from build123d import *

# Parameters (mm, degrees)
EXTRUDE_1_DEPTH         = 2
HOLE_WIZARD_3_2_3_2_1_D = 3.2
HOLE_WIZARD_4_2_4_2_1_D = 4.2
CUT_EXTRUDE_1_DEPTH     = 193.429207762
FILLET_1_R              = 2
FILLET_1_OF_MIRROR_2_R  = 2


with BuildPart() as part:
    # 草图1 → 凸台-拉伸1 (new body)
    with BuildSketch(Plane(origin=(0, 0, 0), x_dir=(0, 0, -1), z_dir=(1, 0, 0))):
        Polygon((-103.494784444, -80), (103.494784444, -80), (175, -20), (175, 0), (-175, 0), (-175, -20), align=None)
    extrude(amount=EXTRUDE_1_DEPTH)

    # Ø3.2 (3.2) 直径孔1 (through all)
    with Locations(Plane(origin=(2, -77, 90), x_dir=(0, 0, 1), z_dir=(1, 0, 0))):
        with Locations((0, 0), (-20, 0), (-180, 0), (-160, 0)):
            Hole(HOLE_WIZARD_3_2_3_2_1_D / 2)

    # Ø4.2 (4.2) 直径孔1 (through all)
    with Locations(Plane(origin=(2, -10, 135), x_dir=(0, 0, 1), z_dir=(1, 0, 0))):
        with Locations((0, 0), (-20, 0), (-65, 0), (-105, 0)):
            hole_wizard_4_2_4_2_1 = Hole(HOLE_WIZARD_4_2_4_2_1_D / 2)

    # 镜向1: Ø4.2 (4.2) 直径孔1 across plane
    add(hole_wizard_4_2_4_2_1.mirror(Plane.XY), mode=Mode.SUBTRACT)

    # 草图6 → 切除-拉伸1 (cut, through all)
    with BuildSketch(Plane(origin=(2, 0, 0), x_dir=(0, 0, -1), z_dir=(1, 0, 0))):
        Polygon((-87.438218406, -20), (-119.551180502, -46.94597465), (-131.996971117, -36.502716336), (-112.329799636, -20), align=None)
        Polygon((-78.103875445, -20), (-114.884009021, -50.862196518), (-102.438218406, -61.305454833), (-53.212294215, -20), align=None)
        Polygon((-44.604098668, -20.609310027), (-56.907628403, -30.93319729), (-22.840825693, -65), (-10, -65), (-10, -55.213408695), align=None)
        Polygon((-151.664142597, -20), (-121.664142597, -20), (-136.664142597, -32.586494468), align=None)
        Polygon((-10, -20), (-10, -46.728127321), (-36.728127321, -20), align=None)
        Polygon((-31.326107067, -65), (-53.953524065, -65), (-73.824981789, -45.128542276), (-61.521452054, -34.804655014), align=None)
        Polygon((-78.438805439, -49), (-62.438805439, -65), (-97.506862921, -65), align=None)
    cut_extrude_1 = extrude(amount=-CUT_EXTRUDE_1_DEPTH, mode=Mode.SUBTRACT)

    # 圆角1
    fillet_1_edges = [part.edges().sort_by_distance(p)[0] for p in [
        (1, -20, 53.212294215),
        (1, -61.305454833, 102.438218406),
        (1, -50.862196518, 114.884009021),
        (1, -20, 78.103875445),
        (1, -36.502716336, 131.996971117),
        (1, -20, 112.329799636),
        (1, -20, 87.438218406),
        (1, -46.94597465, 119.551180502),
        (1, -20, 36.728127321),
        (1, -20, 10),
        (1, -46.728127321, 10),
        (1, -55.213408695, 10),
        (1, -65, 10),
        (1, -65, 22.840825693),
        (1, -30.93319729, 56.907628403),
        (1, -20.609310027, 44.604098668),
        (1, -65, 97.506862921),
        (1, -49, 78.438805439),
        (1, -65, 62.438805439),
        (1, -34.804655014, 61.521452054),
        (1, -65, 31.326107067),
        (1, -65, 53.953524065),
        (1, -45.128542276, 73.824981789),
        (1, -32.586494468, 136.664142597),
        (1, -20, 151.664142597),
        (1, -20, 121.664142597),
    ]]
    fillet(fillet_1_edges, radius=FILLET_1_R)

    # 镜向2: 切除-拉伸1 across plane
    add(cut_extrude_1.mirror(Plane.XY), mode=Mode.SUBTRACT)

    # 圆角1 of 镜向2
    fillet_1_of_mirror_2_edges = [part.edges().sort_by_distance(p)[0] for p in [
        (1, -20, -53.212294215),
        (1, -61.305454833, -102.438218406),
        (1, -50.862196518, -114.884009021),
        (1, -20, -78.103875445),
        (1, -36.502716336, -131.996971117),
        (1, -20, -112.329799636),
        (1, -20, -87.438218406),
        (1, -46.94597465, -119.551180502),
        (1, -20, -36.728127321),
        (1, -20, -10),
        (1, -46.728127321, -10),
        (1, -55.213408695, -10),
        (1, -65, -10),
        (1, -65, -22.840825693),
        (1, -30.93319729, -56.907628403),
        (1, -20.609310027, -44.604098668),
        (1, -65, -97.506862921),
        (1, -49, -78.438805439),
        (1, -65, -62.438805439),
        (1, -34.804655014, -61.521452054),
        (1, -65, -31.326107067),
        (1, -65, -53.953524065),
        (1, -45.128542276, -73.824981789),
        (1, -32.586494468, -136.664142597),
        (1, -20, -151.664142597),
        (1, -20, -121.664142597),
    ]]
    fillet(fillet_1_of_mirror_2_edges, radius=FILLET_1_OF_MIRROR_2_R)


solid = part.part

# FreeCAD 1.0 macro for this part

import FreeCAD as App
import Part
import Sketcher

V = App.Vector
Q = App.Units.Quantity


def edges_at(feature, points):
    """Names of the edges that pass closest to the given points."""
    edges = feature.Shape.Edges
    near = lambda p: min(range(len(edges)), key=lambda i: edges[i].distToShape(Part.Vertex(*p))[0])
    return sorted({f"Edge{near(p) + 1}" for p in points})


def add_polygon(sketch, points):
    """Adds a closed chain of lines whose ends are joined by coincident constraints."""
    first, n = sketch.GeometryCount, len(points)
    for a, b in zip(points, points[1:] + points[:1]):
        sketch.addGeometry(Part.LineSegment(App.Vector(*a, 0), App.Vector(*b, 0)), False)
    for i in range(n):
        sketch.addConstraint(Sketcher.Constraint("Coincident", first + i, 2, first + (i + 1) % n, 1))

doc = App.newDocument("Part")
body = doc.addObject("PartDesign::Body", "Body")

# Sketch on YZ plane
sketch1 = body.newObject("Sketcher::SketchObject", "Sketch")
sketch1.AttachmentSupport = (doc.getObject("YZ_Plane"), [""])
sketch1.MapMode = "FlatFace"
add_polygon(sketch1, [(-80, 103), (-80, -103), (-20, -175), (0, -175), (0, 175), (-20, 175)])  # lines 0-5
sketch1.addConstraint([
    Sketcher.Constraint("Vertical", 0),
    Sketcher.Constraint("Horizontal", 2),
    Sketcher.Constraint("Vertical", 3),
    Sketcher.Constraint("Horizontal", 4),
    Sketcher.Constraint("Symmetric", 2, 2, 3, 2, -1, 1),
    Sketcher.Constraint("Vertical", 1, 2, 4, 2),
    Sketcher.Constraint("Equal", 1, 5),
    Sketcher.Constraint("DistanceX", 2, 1, 2, 2, 20.0),
    Sketcher.Constraint("DistanceY", 3, 1, 3, 2, 350.0),
    Sketcher.Constraint("Angle", 1, Q("-50 deg")),
    Sketcher.Constraint("DistanceX", 0, 2, -1, 1, 80.0),
])
pad1 = body.newObject("PartDesign::Pad", "Pad")
pad1.Profile = sketch1
pad1.Length = 2

# Sketch on YZ plane
sketch2 = body.newObject("Sketcher::SketchObject", "Sketch001")
sketch2.AttachmentSupport = (doc.getObject("YZ_Plane"), [""])
sketch2.MapMode = "FlatFace"
sketch2.AttachmentOffset = App.Placement(V(0, 0, 2), App.Rotation())
sketch2.addGeometry([
    Part.Circle(V(-77, 90, 0), V(0, 0, 1), 1.6),
    Part.Circle(V(-77, 70, 0), V(0, 0, 1), 1.6),
    Part.Circle(V(-77, -90, 0), V(0, 0, 1), 1.6),
    Part.Circle(V(-77, -70, 0), V(0, 0, 1), 1.6),
], False)
sketch2.addConstraint([
    Sketcher.Constraint("Equal", 0, 1),
    Sketcher.Constraint("Equal", 1, 2),
    Sketcher.Constraint("Equal", 2, 3),
    Sketcher.Constraint("Symmetric", 0, 3, 2, 3, -1),
    Sketcher.Constraint("Symmetric", 1, 3, 3, 3, -1),
    Sketcher.Constraint("Vertical", 0, 3, 1, 3),
    Sketcher.Constraint("Diameter", 0, 3.2),
    Sketcher.Constraint("DistanceX", 0, 3, -1, 1, 77.0),
    Sketcher.Constraint("DistanceY", -1, 1, 0, 3, 90.0),
    Sketcher.Constraint("DistanceY", -1, 1, 1, 3, 70.0),
])
doc.recompute()
hole = body.newObject("PartDesign::Hole", "Hole")
hole.Profile = sketch2
hole.ThreadType = "None"
hole.Diameter = 3.2
hole.DepthType = "ThroughAll"

# Sketch on YZ plane
sketch3 = body.newObject("Sketcher::SketchObject", "Sketch002")
sketch3.AttachmentSupport = (doc.getObject("YZ_Plane"), [""])
sketch3.MapMode = "FlatFace"
sketch3.AttachmentOffset = App.Placement(V(0, 0, 2), App.Rotation())
sketch3.addGeometry([
    Part.Circle(V(-10, 135, 0), V(0, 0, 1), 2.1),
    Part.Circle(V(-10, 115, 0), V(0, 0, 1), 2.1),
    Part.Circle(V(-10, 70, 0), V(0, 0, 1), 2.1),
    Part.Circle(V(-10, 30, 0), V(0, 0, 1), 2.1),
], False)
sketch3.addConstraint([
    Sketcher.Constraint("Equal", 0, 1),
    Sketcher.Constraint("Equal", 1, 2),
    Sketcher.Constraint("Equal", 2, 3),
    Sketcher.Constraint("Vertical", 0, 3, 1, 3),
    Sketcher.Constraint("Vertical", 1, 3, 2, 3),
    Sketcher.Constraint("Vertical", 2, 3, 3, 3),
    Sketcher.Constraint("Diameter", 0, 4.2),
    Sketcher.Constraint("DistanceX", 0, 3, -1, 1, 10.0),
    Sketcher.Constraint("DistanceY", -1, 1, 0, 3, 135.0),
    Sketcher.Constraint("DistanceY", -1, 1, 1, 3, 115.0),
    Sketcher.Constraint("DistanceY", -1, 1, 2, 3, 70.0),
    Sketcher.Constraint("DistanceY", -1, 1, 3, 3, 30.0),
])
doc.recompute()
hole2 = body.newObject("PartDesign::Hole", "Hole001")
hole2.Profile = sketch3
hole2.ThreadType = "None"
hole2.Diameter = 4.2
hole2.DepthType = "ThroughAll"
doc.recompute()

mirrored = body.newObject("PartDesign::Mirrored", "Mirrored")
mirrored.Originals = [hole2]
mirrored.MirrorPlane = (doc.getObject("XY_Plane"), [""])
body.Tip = mirrored

# Sketch on YZ plane
sketch4 = body.newObject("Sketcher::SketchObject", "Sketch003")
sketch4.AttachmentSupport = (doc.getObject("YZ_Plane"), [""])
sketch4.MapMode = "FlatFace"
sketch4.AttachmentOffset = App.Placement(V(0, 0, 2), App.Rotation())
add_polygon(sketch4, [(-47, 120), (-20, 87), (-20, 112), (-37, 132)])  # lines 0-3
add_polygon(sketch4, [(-20, 78), (-51, 115), (-61, 102), (-20, 53)])  # lines 4-7
add_polygon(sketch4, [(-21, 45), (-31, 57), (-65, 23), (-65, 10), (-55, 10)])  # lines 8-12
add_polygon(sketch4, [(-20, 122), (-20, 152), (-33, 137)])  # lines 13-15
add_polygon(sketch4, [(-47, 10), (-20, 10), (-20, 37)])  # lines 16-18
add_polygon(sketch4, [(-65, 54), (-65, 31), (-35, 62), (-45, 74)])  # lines 19-22
add_polygon(sketch4, [(-65, 62), (-49, 78), (-65, 98)])  # lines 23-25
sketch4.addConstraint([
    Sketcher.Constraint("Vertical", 1),
    Sketcher.Constraint("Vertical", 7),
    Sketcher.Constraint("Vertical", 10),
    Sketcher.Constraint("Horizontal", 11),
    Sketcher.Constraint("Vertical", 13),
    Sketcher.Constraint("Horizontal", 16),
    Sketcher.Constraint("Vertical", 17),
    Sketcher.Constraint("Vertical", 19),
    Sketcher.Constraint("Vertical", 25),
    Sketcher.Constraint("Parallel", 0, 2),
    Sketcher.Constraint("Parallel", 2, 4),
    Sketcher.Constraint("Parallel", 3, 5),
    Sketcher.Constraint("Parallel", 4, 6),
    Sketcher.Constraint("Parallel", 6, 8),
    Sketcher.Constraint("Parallel", 9, 12),
    Sketcher.Constraint("Parallel", 5, 14),
    Sketcher.Constraint("Parallel", 8, 15),
    Sketcher.Constraint("Parallel", 12, 18),
    Sketcher.Constraint("Parallel", 18, 20),
    Sketcher.Constraint("Parallel", 15, 21),
    Sketcher.Constraint("Parallel", 20, 22),
    Sketcher.Constraint("Parallel", 22, 23),
    Sketcher.Constraint("Parallel", 21, 24),
    Sketcher.Constraint("Horizontal", 11, 2, 16, 2),
    Sketcher.Constraint("Vertical", 1, 2, 6, 2),
    Sketcher.Constraint("Vertical", 7, 2, 13, 2),
    Sketcher.Constraint("Vertical", 15, 2, 16, 2),
    Sketcher.Constraint("Vertical", 10, 2, 19, 2),
    Sketcher.Constraint("Vertical", 22, 2, 24, 2),
    Sketcher.Constraint("Equal", 1, 7),
    Sketcher.Constraint("Equal", 16, 17),
    Sketcher.Constraint("Equal", 14, 15),
    Sketcher.Constraint("Equal", 8, 21),
    Sketcher.Constraint("DistanceY", 13, 1, 13, 2, 30.0),
    Sketcher.Constraint("Angle", 0, Q("-50 deg")),
    Sketcher.Constraint("DistanceX", 0, 2, -1, 1, 20.0),
    Sketcher.Constraint("DistanceX", 9, 2, -1, 1, 65.0),
    Sketcher.Constraint("DistanceY", -1, 1, 10, 2, 10.0),
    Sketcher.Constraint("DistanceX", 23, 2, -1, 1, 49.0),
    Sketcher.Constraint("DistanceY", 0, 2, 5, 2, 15.0),
    Sketcher.Constraint("DistanceX", 11, 1, 11, 2, 9.786591),
    Sketcher.Constraint("DistanceY", 1, 1, 1, 2, 24.891581),
    Sketcher.Constraint("DistanceY", -1, 1, 1, 2, 112.3298),
    Sketcher.Constraint("DistanceY", -1, 1, 12, 2, 44.604099),
    Sketcher.Constraint("DistanceY", 17, 2, 8, 2, 20.179501),
    Sketcher.Constraint("DistanceY", 9, 2, 22, 2, 31.112698),
    Sketcher.Constraint("DistanceY", 19, 2, 25, 2, 31.112698),
    Sketcher.Constraint("Distance", 2, 25.673669),
    Sketcher.Constraint("Distance", 6, 64.25988),
    Sketcher.Constraint("Distance", 18, 37.79928),
    Sketcher.Constraint("DistanceY", -1, 1, 21, 2, 73.824982),
    Sketcher.Constraint("DistanceY", 2, 2, 13, 2, 19.667171),
])
pocket1 = body.newObject("PartDesign::Pocket", "Pocket")
pocket1.Profile = sketch4
pocket1.Type = "ThroughAll"
doc.recompute()

fillet = body.newObject("PartDesign::Fillet", "Fillet")
fillet.Base = (pocket1, edges_at(pocket1, [
    (1, -20, 53.212),
    (1, -61.305, 102.438),
    (1, -50.862, 114.884),
    (1, -20, 78.104),
    (1, -36.503, 131.997),
    (1, -20, 112.33),
    (1, -20, 87.438),
    (1, -46.946, 119.551),
    (1, -20, 36.728),
    (1, -20, 10),
    (1, -46.728, 10),
    (1, -55.213, 10),
    (1, -65, 10),
    (1, -65, 22.841),
    (1, -30.933, 56.908),
    (1, -20.609, 44.604),
    (1, -65, 97.507),
    (1, -49, 78.439),
    (1, -65, 62.439),
    (1, -34.805, 61.521),
    (1, -65, 31.326),
    (1, -65, 53.954),
    (1, -45.129, 73.825),
    (1, -32.586, 136.664),
    (1, -20, 151.664),
    (1, -20, 121.664),
]))
fillet.Radius = 2
doc.recompute()

mirrored2 = body.newObject("PartDesign::Mirrored", "Mirrored001")
mirrored2.Originals = [pocket1]
mirrored2.MirrorPlane = (doc.getObject("XY_Plane"), [""])
body.Tip = mirrored2
doc.recompute()

fillet2 = body.newObject("PartDesign::Fillet", "Fillet001")
fillet2.Base = (mirrored2, edges_at(mirrored2, [
    (1, -20, -53.212),
    (1, -61.305, -102.438),
    (1, -50.862, -114.884),
    (1, -20, -78.104),
    (1, -36.503, -131.997),
    (1, -20, -112.33),
    (1, -20, -87.438),
    (1, -46.946, -119.551),
    (1, -20, -36.728),
    (1, -20, -10),
    (1, -46.728, -10),
    (1, -55.213, -10),
    (1, -65, -10),
    (1, -65, -22.841),
    (1, -30.933, -56.908),
    (1, -20.609, -44.604),
    (1, -65, -97.507),
    (1, -49, -78.439),
    (1, -65, -62.439),
    (1, -34.805, -61.521),
    (1, -65, -31.326),
    (1, -65, -53.954),
    (1, -45.129, -73.825),
    (1, -32.586, -136.664),
    (1, -20, -151.664),
    (1, -20, -121.664),
]))
fillet2.Radius = 2

doc.recompute()
